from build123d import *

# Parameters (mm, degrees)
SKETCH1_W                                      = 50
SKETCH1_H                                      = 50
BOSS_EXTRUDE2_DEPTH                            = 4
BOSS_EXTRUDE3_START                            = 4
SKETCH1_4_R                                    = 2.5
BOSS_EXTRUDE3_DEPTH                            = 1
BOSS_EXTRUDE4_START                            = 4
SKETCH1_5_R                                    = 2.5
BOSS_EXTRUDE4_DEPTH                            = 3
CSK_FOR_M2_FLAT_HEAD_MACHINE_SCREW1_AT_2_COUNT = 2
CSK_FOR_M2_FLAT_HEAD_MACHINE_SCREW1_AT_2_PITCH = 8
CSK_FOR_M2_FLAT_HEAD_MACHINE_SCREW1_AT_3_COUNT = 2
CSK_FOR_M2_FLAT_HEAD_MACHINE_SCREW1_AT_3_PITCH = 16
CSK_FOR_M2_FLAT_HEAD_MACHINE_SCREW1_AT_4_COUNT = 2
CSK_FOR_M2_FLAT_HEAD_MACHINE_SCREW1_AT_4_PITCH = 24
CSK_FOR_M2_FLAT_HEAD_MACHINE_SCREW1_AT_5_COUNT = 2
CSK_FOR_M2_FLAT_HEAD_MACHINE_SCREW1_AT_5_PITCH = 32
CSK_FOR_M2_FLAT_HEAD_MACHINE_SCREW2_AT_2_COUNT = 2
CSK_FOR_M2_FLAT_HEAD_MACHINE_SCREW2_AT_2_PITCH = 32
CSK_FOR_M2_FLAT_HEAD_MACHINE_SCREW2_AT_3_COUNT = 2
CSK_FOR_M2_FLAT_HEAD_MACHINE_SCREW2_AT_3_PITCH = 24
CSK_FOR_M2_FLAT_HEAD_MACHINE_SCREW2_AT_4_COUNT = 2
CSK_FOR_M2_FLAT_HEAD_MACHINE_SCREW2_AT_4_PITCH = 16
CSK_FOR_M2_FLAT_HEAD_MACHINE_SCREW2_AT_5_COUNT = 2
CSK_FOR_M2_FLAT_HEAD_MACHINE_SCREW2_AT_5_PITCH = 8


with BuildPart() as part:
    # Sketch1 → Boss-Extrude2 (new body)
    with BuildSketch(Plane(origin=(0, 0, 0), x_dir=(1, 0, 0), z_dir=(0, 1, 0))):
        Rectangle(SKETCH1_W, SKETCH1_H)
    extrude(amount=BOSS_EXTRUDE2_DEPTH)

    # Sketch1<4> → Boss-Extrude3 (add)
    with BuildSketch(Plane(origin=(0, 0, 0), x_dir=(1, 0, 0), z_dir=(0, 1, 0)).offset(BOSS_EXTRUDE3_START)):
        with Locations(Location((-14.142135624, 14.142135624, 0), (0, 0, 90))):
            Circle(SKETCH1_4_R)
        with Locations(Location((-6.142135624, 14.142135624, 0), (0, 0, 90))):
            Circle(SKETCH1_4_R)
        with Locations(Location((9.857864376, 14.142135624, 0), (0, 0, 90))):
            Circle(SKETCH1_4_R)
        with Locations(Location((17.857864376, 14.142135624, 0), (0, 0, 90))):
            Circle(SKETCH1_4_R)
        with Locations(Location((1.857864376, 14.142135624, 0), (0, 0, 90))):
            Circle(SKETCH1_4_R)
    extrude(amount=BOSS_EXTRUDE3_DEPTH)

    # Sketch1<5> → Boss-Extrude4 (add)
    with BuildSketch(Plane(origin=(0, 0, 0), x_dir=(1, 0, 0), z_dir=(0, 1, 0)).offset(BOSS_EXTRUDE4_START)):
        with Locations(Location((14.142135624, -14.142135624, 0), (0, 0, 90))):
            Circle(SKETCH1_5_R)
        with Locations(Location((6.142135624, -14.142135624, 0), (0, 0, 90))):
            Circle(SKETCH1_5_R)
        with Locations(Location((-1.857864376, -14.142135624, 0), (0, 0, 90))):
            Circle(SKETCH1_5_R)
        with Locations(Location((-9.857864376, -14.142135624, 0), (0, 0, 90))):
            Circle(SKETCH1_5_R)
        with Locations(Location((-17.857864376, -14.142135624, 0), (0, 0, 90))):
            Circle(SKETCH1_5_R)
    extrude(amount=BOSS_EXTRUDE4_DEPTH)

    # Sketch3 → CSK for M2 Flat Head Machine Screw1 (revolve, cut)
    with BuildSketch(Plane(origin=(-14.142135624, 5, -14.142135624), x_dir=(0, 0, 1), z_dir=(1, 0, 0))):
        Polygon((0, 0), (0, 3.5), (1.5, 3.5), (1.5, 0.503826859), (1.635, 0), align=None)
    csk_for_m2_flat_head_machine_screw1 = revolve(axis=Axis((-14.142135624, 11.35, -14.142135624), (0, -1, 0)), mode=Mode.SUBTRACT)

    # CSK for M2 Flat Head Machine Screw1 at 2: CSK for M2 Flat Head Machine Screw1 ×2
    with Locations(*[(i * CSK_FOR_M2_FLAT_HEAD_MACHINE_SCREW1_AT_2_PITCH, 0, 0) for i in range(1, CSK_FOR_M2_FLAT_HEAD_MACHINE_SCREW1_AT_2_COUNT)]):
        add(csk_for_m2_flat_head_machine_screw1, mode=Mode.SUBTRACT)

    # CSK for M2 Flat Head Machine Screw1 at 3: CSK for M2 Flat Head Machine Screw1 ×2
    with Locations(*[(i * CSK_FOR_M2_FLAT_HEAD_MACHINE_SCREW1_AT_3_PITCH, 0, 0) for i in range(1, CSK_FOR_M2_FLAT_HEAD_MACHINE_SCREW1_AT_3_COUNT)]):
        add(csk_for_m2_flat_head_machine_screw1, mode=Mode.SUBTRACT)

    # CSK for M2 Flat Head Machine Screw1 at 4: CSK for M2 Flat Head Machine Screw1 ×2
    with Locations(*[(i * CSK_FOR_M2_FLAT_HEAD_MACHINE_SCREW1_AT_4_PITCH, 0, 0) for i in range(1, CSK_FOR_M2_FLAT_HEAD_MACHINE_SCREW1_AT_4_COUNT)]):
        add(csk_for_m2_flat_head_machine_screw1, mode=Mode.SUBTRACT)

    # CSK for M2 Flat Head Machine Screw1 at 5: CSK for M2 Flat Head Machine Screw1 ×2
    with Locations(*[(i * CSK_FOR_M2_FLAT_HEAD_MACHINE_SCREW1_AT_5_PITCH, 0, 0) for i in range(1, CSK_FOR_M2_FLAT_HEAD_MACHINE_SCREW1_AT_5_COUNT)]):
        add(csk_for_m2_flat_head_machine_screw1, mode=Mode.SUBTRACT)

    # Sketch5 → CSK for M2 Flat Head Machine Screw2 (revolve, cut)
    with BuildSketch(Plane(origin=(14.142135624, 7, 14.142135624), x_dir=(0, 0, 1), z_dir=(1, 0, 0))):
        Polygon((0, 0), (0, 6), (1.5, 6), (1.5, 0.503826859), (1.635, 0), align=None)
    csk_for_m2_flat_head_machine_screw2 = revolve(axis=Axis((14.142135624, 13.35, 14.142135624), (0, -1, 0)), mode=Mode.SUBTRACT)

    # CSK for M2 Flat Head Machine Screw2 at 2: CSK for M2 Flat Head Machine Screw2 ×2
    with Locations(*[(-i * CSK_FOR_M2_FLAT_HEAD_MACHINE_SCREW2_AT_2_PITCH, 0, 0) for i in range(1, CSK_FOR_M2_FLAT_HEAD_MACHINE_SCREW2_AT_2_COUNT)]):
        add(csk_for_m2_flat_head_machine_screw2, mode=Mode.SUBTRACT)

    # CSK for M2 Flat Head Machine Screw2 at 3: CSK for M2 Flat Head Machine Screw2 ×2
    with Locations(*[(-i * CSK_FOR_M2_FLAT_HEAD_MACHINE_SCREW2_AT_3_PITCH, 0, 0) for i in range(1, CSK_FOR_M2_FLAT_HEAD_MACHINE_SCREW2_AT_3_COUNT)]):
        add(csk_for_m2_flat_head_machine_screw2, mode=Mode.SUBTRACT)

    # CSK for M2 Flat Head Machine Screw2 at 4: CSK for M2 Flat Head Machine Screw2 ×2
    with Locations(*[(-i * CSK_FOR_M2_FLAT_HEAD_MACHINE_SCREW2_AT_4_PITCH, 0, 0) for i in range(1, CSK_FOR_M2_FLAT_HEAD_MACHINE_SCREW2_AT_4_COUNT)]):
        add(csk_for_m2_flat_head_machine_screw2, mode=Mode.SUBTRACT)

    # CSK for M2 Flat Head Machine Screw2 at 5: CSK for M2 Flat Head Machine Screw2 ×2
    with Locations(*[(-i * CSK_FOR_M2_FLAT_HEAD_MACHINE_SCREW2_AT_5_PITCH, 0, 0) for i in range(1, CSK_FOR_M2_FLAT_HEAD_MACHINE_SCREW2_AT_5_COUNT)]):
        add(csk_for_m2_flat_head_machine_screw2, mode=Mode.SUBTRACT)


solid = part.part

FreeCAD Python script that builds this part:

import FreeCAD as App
import Part
import Sketcher

V = App.Vector
Q = App.Units.Quantity

doc = App.newDocument("Part")
body = doc.addObject("PartDesign::Body", "Body")

sketch1 = body.newObject("Sketcher::SketchObject", "Sketch")
sketch1.AttachmentSupport = (doc.getObject("XZ_Plane"), [""])
sketch1.MapMode = "FlatFace"
sketch1.addGeometry(Part.LineSegment(V(-25, -25, 0), V(-25, 25, 0)), False)
sketch1.addGeometry(Part.LineSegment(V(-25, 25, 0), V(25, 25, 0)), False)
sketch1.addGeometry(Part.LineSegment(V(25, 25, 0), V(25, -25, 0)), False)
sketch1.addGeometry(Part.LineSegment(V(25, -25, 0), V(-25, -25, 0)), False)
sketch1.addConstraint(Sketcher.Constraint("Coincident", 0, 2, 1, 1))
sketch1.addConstraint(Sketcher.Constraint("Coincident", 1, 2, 2, 1))
sketch1.addConstraint(Sketcher.Constraint("Coincident", 2, 2, 3, 1))
sketch1.addConstraint(Sketcher.Constraint("Coincident", 3, 2, 0, 1))
sketch1.addConstraint(Sketcher.Constraint("Vertical", 0))
sketch1.addConstraint(Sketcher.Constraint("Horizontal", 1))
sketch1.addConstraint(Sketcher.Constraint("Vertical", 2))
sketch1.addConstraint(Sketcher.Constraint("Horizontal", 3))
sketch1.addConstraint(Sketcher.Constraint("Symmetric", 0, 2, 2, 2, -1, 1))
sketch1.addConstraint(Sketcher.Constraint("Equal", 3, 0))
sketch1.addConstraint(Sketcher.Constraint("DistanceX", 1, 1, 1, 2, Q("50 mm")))
pad1 = body.newObject("PartDesign::Pad", "Pad")
pad1.Profile = sketch1
pad1.Length = 4
pad1.Reversed = True

sketch2 = body.newObject("Sketcher::SketchObject", "Sketch001")
sketch2.AttachmentSupport = (doc.getObject("XZ_Plane"), [""])
sketch2.MapMode = "FlatFace"
sketch2.AttachmentOffset = App.Placement(V(0, 0, -4), App.Rotation())
sketch2.addGeometry(Part.Circle(V(-14.1, -14.1, 0), V(0, 0, 1), 2.5), False)
sketch2.addGeometry(Part.Circle(V(-6.1, -14.1, 0), V(0, 0, 1), 2.5), False)
sketch2.addGeometry(Part.Circle(V(9.9, -14.1, 0), V(0, 0, 1), 2.5), False)
sketch2.addGeometry(Part.Circle(V(17.9, -14.1, 0), V(0, 0, 1), 2.5), False)
sketch2.addGeometry(Part.Circle(V(1.9, -14.1, 0), V(0, 0, 1), 2.5), False)
sketch2.addConstraint(Sketcher.Constraint("Equal", 0, 1))
sketch2.addConstraint(Sketcher.Constraint("Equal", 1, 2))
sketch2.addConstraint(Sketcher.Constraint("Equal", 2, 3))
sketch2.addConstraint(Sketcher.Constraint("Equal", 3, 4))
sketch2.addConstraint(Sketcher.Constraint("Horizontal", 0, 3, 1, 3))
sketch2.addConstraint(Sketcher.Constraint("Horizontal", 1, 3, 2, 3))
sketch2.addConstraint(Sketcher.Constraint("Horizontal", 2, 3, 3, 3))
sketch2.addConstraint(Sketcher.Constraint("Horizontal", 3, 3, 4, 3))
sketch2.addConstraint(Sketcher.Constraint("Diameter", 0, Q("5 mm")))
sketch2.addConstraint(Sketcher.Constraint("DistanceX", 0, 3, 1, 3, Q("8 mm")))
sketch2.addConstraint(Sketcher.Constraint("DistanceX", 1, 3, 2, 3, Q("16 mm")))
sketch2.addConstraint(Sketcher.Constraint("DistanceX", 2, 3, 3, 3, Q("8 mm")))
sketch2.addConstraint(Sketcher.Constraint("DistanceX", 1, 3, 4, 3, Q("8 mm")))
sketch2.addConstraint(Sketcher.Constraint("DistanceX", 0, 3, -1, 1, Q("14.142136 mm")))
sketch2.addConstraint(Sketcher.Constraint("DistanceY", 0, 3, -1, 1, Q("14.142136 mm")))
pad2 = body.newObject("PartDesign::Pad", "Pad001")
pad2.Profile = sketch2
pad2.Length = 1
pad2.Reversed = True

sketch3 = body.newObject("Sketcher::SketchObject", "Sketch002")
sketch3.AttachmentSupport = (doc.getObject("XZ_Plane"), [""])
sketch3.MapMode = "FlatFace"
sketch3.AttachmentOffset = App.Placement(V(0, 0, -4), App.Rotation())
sketch3.addGeometry(Part.Circle(V(14.1, 14.1, 0), V(0, 0, 1), 2.5), False)
sketch3.addGeometry(Part.Circle(V(6.1, 14.1, 0), V(0, 0, 1), 2.5), False)
sketch3.addGeometry(Part.Circle(V(-1.9, 14.1, 0), V(0, 0, 1), 2.5), False)
sketch3.addGeometry(Part.Circle(V(-9.9, 14.1, 0), V(0, 0, 1), 2.5), False)
sketch3.addGeometry(Part.Circle(V(-17.9, 14.1, 0), V(0, 0, 1), 2.5), False)
sketch3.addConstraint(Sketcher.Constraint("Equal", 0, 1))
sketch3.addConstraint(Sketcher.Constraint("Equal", 1, 2))
sketch3.addConstraint(Sketcher.Constraint("Equal", 2, 3))
sketch3.addConstraint(Sketcher.Constraint("Equal", 3, 4))
sketch3.addConstraint(Sketcher.Constraint("Horizontal", 0, 3, 1, 3))
sketch3.addConstraint(Sketcher.Constraint("Horizontal", 1, 3, 2, 3))
sketch3.addConstraint(Sketcher.Constraint("Horizontal", 2, 3, 3, 3))
sketch3.addConstraint(Sketcher.Constraint("Horizontal", 3, 3, 4, 3))
sketch3.addConstraint(Sketcher.Constraint("Diameter", 0, Q("5 mm")))
sketch3.addConstraint(Sketcher.Constraint("DistanceX", 1, 3, 0, 3, Q("8 mm")))
sketch3.addConstraint(Sketcher.Constraint("DistanceX", 2, 3, 1, 3, Q("8 mm")))
sketch3.addConstraint(Sketcher.Constraint("DistanceX", 3, 3, 2, 3, Q("8 mm")))
sketch3.addConstraint(Sketcher.Constraint("DistanceX", 4, 3, 3, 3, Q("8 mm")))
sketch3.addConstraint(Sketcher.Constraint("DistanceX", -1, 1, 0, 3, Q("14.142136 mm")))
sketch3.addConstraint(Sketcher.Constraint("DistanceY", -1, 1, 0, 3, Q("14.142136 mm")))
pad3 = body.newObject("PartDesign::Pad", "Pad002")
pad3.Profile = sketch3
pad3.Length = 3
pad3.Reversed = True

sketch4 = body.newObject("Sketcher::SketchObject", "Sketch003")
sketch4.AttachmentSupport = (doc.getObject("YZ_Plane"), [""])
sketch4.MapMode = "FlatFace"
sketch4.AttachmentOffset = App.Placement(V(0, 0, -14.142136), App.Rotation())
sketch4.addGeometry(Part.LineSegment(V(1.5, -14.1, 0), V(5, -14.1, 0)), False)
sketch4.addGeometry(Part.LineSegment(V(5, -14.1, 0), V(5, -12.5, 0)), False)
sketch4.addGeometry(Part.LineSegment(V(5, -12.5, 0), V(4.5, -12.6, 0)), False)
sketch4.addGeometry(Part.LineSegment(V(4.5, -12.6, 0), V(1.5, -12.6, 0)), False)
sketch4.addGeometry(Part.LineSegment(V(1.5, -12.6, 0), V(1.5, -14.1, 0)), False)
sketch4.addGeometry(Part.LineSegment(V(5, -14.1, 0), V(1.5, -14.1, 0)), True)
sketch4.addConstraint(Sketcher.Constraint("Coincident", 0, 2, 1, 1))
sketch4.addConstraint(Sketcher.Constraint("Coincident", 1, 2, 2, 1))
sketch4.addConstraint(Sketcher.Constraint("Coincident", 2, 2, 3, 1))
sketch4.addConstraint(Sketcher.Constraint("Coincident", 3, 2, 4, 1))
sketch4.addConstraint(Sketcher.Constraint("Coincident", 4, 2, 0, 1))
sketch4.addConstraint(Sketcher.Constraint("Horizontal", 0))
sketch4.addConstraint(Sketcher.Constraint("Vertical", 1))
sketch4.addConstraint(Sketcher.Constraint("Horizontal", 3))
sketch4.addConstraint(Sketcher.Constraint("Vertical", 4))
sketch4.addConstraint(Sketcher.Constraint("Horizontal", 5))
sketch4.addConstraint(Sketcher.Constraint("Coincident", 5, 1, 0, 2))
sketch4.addConstraint(Sketcher.Constraint("Vertical", 3, 2, 5, 2))
sketch4.addConstraint(Sketcher.Constraint("Angle", 2, Q("-165 deg")))
sketch4.addConstraint(Sketcher.Constraint("DistanceX", 0, 1, 0, 2, Q("3.5 mm")))
sketch4.addConstraint(Sketcher.Constraint("DistanceY", 4, 2, 4, 1, Q("1.5 mm")))
sketch4.addConstraint(Sketcher.Constraint("DistanceX", -1, 1, 0, 2, Q("5 mm")))
sketch4.addConstraint(Sketcher.Constraint("DistanceY", 1, 1, 1, 2, Q("1.635 mm")))
sketch4.addConstraint(Sketcher.Constraint("DistanceY", 0, 2, -1, 1, Q("14.142136 mm")))
groove = body.newObject("PartDesign::Groove", "Groove")
groove.Profile = sketch4
groove.ReferenceAxis = (sketch4, ["Axis0"])
groove.Angle = 360
doc.recompute()

linearpattern = body.newObject("PartDesign::LinearPattern", "LinearPattern")
linearpattern.Originals = [groove]
linearpattern.Direction = (doc.getObject("X_Axis"), [""])
linearpattern.Mode = "offset"
linearpattern.Offset = 8
linearpattern.Occurrences = 2
body.Tip = linearpattern
doc.recompute()

linearpattern2 = body.newObject("PartDesign::LinearPattern", "LinearPattern001")
linearpattern2.Originals = [groove]
linearpattern2.Direction = (doc.getObject("X_Axis"), [""])
linearpattern2.Mode = "offset"
linearpattern2.Offset = 16
linearpattern2.Occurrences = 2
body.Tip = linearpattern2
doc.recompute()

linearpattern3 = body.newObject("PartDesign::LinearPattern", "LinearPattern002")
linearpattern3.Originals = [groove]
linearpattern3.Direction = (doc.getObject("X_Axis"), [""])
linearpattern3.Mode = "offset"
linearpattern3.Offset = 24
linearpattern3.Occurrences = 2
body.Tip = linearpattern3
doc.recompute()

linearpattern4 = body.newObject("PartDesign::LinearPattern", "LinearPattern003")
linearpattern4.Originals = [groove]
linearpattern4.Direction = (doc.getObject("X_Axis"), [""])
linearpattern4.Mode = "offset"
linearpattern4.Offset = 32
linearpattern4.Occurrences = 2
body.Tip = linearpattern4

sketch5 = body.newObject("Sketcher::SketchObject", "Sketch004")
sketch5.AttachmentSupport = (doc.getObject("YZ_Plane"), [""])
sketch5.MapMode = "FlatFace"
sketch5.AttachmentOffset = App.Placement(V(0, 0, 14.142136), App.Rotation())
sketch5.addGeometry(Part.LineSegment(V(1, 14.1, 0), V(7, 14.1, 0)), False)
sketch5.addGeometry(Part.LineSegment(V(7, 14.1, 0), V(7, 15.8, 0)), False)
sketch5.addGeometry(Part.LineSegment(V(7, 15.8, 0), V(6.5, 15.6, 0)), False)
sketch5.addGeometry(Part.LineSegment(V(6.5, 15.6, 0), V(1, 15.6, 0)), False)
sketch5.addGeometry(Part.LineSegment(V(1, 15.6, 0), V(1, 14.1, 0)), False)
sketch5.addGeometry(Part.LineSegment(V(7, 14.1, 0), V(1, 14.1, 0)), True)
sketch5.addConstraint(Sketcher.Constraint("Coincident", 0, 2, 1, 1))
sketch5.addConstraint(Sketcher.Constraint("Coincident", 1, 2, 2, 1))
sketch5.addConstraint(Sketcher.Constraint("Coincident", 2, 2, 3, 1))
sketch5.addConstraint(Sketcher.Constraint("Coincident", 3, 2, 4, 1))
sketch5.addConstraint(Sketcher.Constraint("Coincident", 4, 2, 0, 1))
sketch5.addConstraint(Sketcher.Constraint("Horizontal", 0))
sketch5.addConstraint(Sketcher.Constraint("Vertical", 1))
sketch5.addConstraint(Sketcher.Constraint("Horizontal", 3))
sketch5.addConstraint(Sketcher.Constraint("Vertical", 4))
sketch5.addConstraint(Sketcher.Constraint("Horizontal", 5))
sketch5.addConstraint(Sketcher.Constraint("Coincident", 5, 1, 0, 2))
sketch5.addConstraint(Sketcher.Constraint("Vertical", 3, 2, 5, 2))
sketch5.addConstraint(Sketcher.Constraint("DistanceX", 0, 1, 0, 2, Q("6 mm")))
sketch5.addConstraint(Sketcher.Constraint("Angle", 2, Q("-165 deg")))
sketch5.addConstraint(Sketcher.Constraint("DistanceY", 4, 2, 4, 1, Q("1.5 mm")))
sketch5.addConstraint(Sketcher.Constraint("DistanceX", -1, 1, 0, 2, Q("7 mm")))
sketch5.addConstraint(Sketcher.Constraint("DistanceY", 1, 1, 1, 2, Q("1.635 mm")))
sketch5.addConstraint(Sketcher.Constraint("DistanceY", -1, 1, 0, 2, Q("14.142136 mm")))
groove2 = body.newObject("PartDesign::Groove", "Groove001")
groove2.Profile = sketch5
groove2.ReferenceAxis = (sketch5, ["Axis0"])
groove2.Angle = 360
doc.recompute()

linearpattern5 = body.newObject("PartDesign::LinearPattern", "LinearPattern004")
linearpattern5.Originals = [groove2]
linearpattern5.Direction = (doc.getObject("X_Axis"), [""])
linearpattern5.Mode = "offset"
linearpattern5.Offset = 32
linearpattern5.Occurrences = 2
linearpattern5.Reversed = True
body.Tip = linearpattern5
doc.recompute()

linearpattern6 = body.newObject("PartDesign::LinearPattern", "LinearPattern005")
linearpattern6.Originals = [groove2]
linearpattern6.Direction = (doc.getObject("X_Axis"), [""])
linearpattern6.Mode = "offset"
linearpattern6.Offset = 24
linearpattern6.Occurrences = 2
linearpattern6.Reversed = True
body.Tip = linearpattern6
doc.recompute()

linearpattern7 = body.newObject("PartDesign::LinearPattern", "LinearPattern006")
linearpattern7.Originals = [groove2]
linearpattern7.Direction = (doc.getObject("X_Axis"), [""])
linearpattern7.Mode = "offset"
linearpattern7.Offset = 16
linearpattern7.Occurrences = 2
linearpattern7.Reversed = True
body.Tip = linearpattern7
doc.recompute()

linearpattern8 = body.newObject("PartDesign::LinearPattern", "LinearPattern007")
linearpattern8.Originals = [groove2]
linearpattern8.Direction = (doc.getObject("X_Axis"), [""])
linearpattern8.Mode = "offset"
linearpattern8.Offset = 8
linearpattern8.Occurrences = 2
linearpattern8.Reversed = True
body.Tip = linearpattern8

doc.recompute()
